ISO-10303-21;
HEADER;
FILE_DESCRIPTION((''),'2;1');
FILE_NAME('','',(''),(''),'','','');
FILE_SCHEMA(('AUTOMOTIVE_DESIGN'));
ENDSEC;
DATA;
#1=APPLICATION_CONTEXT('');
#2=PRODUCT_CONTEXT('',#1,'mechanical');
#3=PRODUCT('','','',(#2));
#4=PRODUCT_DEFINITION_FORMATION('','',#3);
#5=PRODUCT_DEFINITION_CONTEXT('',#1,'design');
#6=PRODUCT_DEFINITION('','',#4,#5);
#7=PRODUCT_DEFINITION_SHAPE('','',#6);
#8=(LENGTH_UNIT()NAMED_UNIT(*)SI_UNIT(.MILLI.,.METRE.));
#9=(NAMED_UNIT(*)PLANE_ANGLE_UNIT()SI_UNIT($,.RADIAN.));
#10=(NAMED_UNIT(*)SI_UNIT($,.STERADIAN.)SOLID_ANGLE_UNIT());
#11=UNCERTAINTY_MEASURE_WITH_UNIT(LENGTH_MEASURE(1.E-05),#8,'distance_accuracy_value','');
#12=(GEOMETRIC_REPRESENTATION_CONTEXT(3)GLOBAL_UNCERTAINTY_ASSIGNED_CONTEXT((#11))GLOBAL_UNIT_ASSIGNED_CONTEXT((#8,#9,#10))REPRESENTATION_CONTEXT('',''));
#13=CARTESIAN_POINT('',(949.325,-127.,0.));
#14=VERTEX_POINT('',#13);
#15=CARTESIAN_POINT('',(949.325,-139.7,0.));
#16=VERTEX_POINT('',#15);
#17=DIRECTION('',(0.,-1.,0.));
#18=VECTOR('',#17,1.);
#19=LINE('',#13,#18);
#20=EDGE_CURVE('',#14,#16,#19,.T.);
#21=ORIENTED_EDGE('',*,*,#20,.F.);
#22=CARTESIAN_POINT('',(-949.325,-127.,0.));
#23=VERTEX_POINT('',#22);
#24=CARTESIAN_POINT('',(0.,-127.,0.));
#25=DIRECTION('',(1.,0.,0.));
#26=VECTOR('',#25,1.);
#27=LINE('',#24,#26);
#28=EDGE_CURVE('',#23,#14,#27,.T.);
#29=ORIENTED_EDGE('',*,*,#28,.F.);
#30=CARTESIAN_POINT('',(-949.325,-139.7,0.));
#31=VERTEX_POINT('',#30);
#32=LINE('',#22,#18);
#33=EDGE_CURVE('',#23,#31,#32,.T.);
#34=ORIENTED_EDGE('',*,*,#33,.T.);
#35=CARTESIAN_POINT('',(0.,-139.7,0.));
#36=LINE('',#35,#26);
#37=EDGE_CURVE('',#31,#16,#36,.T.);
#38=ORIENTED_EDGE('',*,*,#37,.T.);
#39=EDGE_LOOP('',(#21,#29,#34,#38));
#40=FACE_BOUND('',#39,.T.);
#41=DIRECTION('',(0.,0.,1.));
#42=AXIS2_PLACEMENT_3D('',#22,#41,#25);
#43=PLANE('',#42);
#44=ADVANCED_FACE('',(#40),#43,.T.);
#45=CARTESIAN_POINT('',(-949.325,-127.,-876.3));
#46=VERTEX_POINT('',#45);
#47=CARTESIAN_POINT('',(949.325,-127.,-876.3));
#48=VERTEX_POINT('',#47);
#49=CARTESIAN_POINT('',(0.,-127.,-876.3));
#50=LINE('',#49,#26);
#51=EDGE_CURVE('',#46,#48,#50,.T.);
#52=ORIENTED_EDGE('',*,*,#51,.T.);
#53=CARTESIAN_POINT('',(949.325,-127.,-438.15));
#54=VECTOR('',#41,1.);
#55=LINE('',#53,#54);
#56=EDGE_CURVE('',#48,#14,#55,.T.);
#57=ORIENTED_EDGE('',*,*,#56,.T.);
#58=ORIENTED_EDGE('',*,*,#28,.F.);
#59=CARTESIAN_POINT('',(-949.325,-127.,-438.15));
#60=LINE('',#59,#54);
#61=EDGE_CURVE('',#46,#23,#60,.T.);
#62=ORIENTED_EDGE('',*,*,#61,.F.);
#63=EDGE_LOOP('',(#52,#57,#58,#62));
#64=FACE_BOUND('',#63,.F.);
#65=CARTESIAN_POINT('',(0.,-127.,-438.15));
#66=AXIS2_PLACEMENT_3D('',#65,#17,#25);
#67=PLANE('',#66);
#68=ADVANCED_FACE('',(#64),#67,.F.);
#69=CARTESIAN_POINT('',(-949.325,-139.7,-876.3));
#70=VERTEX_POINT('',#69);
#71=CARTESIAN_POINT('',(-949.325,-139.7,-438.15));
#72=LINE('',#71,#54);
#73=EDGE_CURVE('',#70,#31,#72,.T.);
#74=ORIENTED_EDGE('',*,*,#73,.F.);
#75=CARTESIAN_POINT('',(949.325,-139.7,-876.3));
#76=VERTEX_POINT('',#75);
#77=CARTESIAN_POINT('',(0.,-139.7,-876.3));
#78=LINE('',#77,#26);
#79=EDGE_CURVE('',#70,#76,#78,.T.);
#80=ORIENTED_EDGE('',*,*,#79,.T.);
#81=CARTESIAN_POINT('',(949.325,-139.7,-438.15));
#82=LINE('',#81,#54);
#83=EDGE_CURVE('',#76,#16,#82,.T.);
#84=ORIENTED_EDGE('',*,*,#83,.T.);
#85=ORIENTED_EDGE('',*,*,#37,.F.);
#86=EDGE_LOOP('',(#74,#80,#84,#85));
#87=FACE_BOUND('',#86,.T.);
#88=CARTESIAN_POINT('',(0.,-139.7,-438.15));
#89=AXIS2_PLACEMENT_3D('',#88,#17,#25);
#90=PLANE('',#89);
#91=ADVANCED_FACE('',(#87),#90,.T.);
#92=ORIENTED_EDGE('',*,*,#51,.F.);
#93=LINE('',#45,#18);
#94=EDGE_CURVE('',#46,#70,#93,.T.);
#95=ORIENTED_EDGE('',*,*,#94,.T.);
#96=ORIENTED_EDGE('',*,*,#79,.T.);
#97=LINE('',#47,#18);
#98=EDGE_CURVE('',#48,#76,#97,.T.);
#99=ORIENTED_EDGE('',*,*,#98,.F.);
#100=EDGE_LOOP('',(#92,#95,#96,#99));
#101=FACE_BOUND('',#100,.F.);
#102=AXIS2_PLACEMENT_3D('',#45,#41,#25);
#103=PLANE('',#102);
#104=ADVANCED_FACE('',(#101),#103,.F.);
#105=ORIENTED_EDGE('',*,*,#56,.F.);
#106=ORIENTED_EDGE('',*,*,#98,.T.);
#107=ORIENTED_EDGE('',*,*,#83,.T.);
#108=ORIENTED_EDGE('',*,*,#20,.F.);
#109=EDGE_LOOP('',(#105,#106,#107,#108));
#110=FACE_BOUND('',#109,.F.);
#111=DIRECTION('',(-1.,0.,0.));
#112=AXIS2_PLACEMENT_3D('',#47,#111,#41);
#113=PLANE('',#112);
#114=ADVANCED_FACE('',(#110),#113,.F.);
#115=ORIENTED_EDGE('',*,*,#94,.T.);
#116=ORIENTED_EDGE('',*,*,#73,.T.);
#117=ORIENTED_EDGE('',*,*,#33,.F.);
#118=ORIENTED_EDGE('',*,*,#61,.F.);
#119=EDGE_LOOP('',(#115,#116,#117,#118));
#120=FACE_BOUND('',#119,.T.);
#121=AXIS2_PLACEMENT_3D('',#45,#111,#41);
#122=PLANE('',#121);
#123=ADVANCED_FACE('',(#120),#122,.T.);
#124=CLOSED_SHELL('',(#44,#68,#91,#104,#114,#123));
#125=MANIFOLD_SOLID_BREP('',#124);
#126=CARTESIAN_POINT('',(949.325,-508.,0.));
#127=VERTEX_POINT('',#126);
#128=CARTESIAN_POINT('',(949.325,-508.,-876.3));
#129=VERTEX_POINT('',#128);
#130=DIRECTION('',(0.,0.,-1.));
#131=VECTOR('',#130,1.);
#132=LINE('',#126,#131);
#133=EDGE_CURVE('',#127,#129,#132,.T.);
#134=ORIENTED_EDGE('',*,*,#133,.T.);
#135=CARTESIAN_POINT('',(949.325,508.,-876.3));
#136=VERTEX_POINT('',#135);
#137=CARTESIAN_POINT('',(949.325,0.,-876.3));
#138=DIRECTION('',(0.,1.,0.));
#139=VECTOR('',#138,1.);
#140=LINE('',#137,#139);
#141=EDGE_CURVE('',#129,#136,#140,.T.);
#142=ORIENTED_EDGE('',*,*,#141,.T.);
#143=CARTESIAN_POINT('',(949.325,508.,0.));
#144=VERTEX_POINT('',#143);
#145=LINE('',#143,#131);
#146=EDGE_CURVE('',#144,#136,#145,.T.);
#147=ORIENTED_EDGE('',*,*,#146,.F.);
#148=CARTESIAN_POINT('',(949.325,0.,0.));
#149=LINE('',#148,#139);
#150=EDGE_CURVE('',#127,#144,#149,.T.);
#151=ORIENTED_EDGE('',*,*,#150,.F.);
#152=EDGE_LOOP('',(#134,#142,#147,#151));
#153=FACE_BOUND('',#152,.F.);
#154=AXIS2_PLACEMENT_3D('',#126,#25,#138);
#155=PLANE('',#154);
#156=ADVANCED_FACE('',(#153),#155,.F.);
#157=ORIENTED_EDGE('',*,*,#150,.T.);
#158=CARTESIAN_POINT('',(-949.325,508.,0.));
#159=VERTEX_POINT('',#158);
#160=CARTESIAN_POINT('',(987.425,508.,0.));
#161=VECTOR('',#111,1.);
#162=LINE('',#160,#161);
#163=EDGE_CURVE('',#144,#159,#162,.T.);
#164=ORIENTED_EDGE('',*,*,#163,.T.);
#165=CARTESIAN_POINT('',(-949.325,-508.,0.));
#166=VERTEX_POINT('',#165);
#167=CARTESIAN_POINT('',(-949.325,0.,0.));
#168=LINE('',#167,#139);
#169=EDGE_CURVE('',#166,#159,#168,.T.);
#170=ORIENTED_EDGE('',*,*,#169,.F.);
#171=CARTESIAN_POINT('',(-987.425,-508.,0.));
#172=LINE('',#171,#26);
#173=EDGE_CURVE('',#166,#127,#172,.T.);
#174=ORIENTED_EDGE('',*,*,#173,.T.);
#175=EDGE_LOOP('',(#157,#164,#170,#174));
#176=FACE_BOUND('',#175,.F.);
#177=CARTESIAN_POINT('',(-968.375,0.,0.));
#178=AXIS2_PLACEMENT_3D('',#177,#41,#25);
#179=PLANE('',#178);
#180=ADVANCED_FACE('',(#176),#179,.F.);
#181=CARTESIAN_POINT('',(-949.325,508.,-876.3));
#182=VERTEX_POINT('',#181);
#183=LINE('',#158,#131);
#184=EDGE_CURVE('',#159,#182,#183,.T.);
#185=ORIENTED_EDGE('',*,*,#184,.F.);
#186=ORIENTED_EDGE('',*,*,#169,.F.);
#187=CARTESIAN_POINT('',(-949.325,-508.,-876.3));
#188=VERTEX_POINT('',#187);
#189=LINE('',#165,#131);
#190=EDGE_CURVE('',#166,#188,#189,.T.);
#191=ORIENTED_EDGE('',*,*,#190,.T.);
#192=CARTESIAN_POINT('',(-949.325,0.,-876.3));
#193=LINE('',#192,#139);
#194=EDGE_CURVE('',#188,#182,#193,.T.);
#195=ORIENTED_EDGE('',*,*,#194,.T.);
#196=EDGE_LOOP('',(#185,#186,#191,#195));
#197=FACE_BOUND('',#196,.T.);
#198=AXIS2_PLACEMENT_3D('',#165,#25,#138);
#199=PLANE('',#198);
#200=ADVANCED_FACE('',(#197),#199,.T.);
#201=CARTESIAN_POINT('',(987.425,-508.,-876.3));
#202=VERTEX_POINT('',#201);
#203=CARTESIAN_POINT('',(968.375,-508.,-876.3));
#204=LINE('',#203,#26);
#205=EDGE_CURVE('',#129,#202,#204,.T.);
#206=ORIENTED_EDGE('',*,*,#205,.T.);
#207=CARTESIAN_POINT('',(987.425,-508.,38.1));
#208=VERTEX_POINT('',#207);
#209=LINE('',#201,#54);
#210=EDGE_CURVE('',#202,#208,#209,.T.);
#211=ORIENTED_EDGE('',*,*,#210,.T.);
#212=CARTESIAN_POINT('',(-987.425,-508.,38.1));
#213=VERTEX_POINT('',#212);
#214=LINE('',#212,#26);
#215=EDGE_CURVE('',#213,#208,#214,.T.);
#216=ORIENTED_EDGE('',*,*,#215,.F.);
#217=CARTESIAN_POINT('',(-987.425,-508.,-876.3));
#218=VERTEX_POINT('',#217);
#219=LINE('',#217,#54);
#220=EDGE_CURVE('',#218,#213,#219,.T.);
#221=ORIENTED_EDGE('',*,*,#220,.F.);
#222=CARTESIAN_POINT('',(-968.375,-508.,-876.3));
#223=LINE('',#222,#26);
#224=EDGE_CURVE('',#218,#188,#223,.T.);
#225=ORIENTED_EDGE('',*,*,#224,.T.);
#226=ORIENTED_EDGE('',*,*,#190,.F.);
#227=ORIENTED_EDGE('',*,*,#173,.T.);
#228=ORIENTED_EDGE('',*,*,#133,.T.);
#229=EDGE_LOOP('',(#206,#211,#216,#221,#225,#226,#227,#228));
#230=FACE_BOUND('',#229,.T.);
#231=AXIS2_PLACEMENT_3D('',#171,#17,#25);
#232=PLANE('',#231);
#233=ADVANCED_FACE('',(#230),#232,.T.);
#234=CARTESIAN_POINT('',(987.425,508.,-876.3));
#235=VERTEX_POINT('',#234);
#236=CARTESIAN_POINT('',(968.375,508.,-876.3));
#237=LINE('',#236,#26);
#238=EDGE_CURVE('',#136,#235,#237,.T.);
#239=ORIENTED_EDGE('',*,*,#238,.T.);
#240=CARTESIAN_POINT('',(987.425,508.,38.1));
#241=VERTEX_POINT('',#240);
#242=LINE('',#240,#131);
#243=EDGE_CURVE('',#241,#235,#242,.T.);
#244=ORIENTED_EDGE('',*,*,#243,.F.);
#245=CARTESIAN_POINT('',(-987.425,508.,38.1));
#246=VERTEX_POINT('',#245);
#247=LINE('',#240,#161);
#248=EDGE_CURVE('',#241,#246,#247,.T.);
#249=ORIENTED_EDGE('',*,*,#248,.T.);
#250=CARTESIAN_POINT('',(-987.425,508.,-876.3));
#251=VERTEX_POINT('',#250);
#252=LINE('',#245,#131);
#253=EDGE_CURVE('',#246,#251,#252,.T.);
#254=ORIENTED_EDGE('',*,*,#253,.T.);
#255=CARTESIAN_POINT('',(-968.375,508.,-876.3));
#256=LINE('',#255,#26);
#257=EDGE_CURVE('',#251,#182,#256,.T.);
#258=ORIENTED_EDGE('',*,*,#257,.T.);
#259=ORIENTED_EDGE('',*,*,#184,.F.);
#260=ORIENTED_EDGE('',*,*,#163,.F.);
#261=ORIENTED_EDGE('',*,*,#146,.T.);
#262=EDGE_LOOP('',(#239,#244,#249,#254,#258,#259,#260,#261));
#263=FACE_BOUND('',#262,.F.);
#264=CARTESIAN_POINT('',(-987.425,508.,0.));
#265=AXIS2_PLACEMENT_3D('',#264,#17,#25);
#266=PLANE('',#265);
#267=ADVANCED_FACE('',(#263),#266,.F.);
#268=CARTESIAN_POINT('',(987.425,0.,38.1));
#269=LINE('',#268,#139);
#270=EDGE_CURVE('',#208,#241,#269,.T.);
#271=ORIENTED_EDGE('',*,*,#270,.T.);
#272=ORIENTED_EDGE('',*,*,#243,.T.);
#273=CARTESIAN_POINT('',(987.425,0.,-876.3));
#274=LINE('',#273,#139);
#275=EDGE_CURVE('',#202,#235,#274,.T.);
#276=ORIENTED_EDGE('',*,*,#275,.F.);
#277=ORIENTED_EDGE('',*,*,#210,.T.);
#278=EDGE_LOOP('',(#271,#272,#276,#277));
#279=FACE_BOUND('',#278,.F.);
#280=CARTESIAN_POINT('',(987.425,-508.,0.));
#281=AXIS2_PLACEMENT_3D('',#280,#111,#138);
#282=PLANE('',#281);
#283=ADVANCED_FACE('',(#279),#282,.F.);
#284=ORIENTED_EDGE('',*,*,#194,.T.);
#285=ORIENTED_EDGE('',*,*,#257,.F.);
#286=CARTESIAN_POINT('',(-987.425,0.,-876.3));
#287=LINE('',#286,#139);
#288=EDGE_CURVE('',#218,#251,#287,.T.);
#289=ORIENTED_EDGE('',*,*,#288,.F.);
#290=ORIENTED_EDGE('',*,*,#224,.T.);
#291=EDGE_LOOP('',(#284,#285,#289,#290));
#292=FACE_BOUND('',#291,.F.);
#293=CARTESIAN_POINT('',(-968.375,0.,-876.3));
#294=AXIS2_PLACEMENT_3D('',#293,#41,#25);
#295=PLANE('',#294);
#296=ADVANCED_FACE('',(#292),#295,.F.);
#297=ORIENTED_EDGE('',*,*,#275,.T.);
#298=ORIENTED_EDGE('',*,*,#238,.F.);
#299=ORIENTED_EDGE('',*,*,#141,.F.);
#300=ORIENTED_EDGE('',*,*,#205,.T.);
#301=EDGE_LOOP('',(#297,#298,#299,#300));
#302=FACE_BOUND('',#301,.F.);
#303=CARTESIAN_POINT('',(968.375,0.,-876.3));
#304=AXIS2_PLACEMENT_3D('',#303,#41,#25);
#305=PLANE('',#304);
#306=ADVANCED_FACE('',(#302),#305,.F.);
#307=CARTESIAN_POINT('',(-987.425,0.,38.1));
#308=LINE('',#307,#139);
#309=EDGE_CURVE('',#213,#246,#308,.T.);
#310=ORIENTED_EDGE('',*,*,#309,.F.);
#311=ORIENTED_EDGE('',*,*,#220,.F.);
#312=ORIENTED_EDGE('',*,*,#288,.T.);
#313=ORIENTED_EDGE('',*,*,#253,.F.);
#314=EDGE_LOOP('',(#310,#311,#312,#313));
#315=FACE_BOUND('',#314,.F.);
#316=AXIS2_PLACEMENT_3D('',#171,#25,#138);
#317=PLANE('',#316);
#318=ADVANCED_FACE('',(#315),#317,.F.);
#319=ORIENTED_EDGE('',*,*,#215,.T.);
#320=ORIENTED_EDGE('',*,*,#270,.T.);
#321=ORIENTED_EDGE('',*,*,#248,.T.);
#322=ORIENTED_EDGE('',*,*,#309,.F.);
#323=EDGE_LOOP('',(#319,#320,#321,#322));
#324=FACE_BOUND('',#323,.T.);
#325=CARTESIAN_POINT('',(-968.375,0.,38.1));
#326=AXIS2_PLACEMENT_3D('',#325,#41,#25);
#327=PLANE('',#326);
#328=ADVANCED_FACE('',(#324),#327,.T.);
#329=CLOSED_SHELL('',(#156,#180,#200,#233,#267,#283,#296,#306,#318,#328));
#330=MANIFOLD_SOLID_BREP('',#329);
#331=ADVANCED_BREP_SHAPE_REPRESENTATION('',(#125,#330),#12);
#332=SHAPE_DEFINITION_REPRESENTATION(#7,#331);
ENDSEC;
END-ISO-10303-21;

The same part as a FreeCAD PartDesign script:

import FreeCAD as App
import Part
import Sketcher

V = App.Vector
Q = App.Units.Quantity

doc = App.newDocument("Part")
body = doc.addObject("PartDesign::Body", "Body")

sketch1 = body.newObject("Sketcher::SketchObject", "Sketch")
sketch1.AttachmentSupport = (doc.getObject("XY_Plane"), [""])
sketch1.MapMode = "FlatFace"
sketch1.addGeometry([
    Part.LineSegment(V(-987, 508, 0), V(-987, -508, 0)),
    Part.LineSegment(V(-987, -508, 0), V(987, -508, 0)),
    Part.LineSegment(V(987, -508, 0), V(987, 508, 0)),
    Part.LineSegment(V(987, 508, 0), V(-987, 508, 0)),
], False)
sketch1.addConstraint([
    Sketcher.Constraint("Coincident", 0, 2, 1, 1),
    Sketcher.Constraint("Coincident", 1, 2, 2, 1),
    Sketcher.Constraint("Coincident", 2, 2, 3, 1),
    Sketcher.Constraint("Coincident", 3, 2, 0, 1),
    Sketcher.Constraint("Vertical", 0),
    Sketcher.Constraint("Horizontal", 1),
    Sketcher.Constraint("Vertical", 2),
    Sketcher.Constraint("Horizontal", 3),
    Sketcher.Constraint("Symmetric", 0, 2, 2, 2, -1, 1),
    Sketcher.Constraint("DistanceY", 0, 2, 0, 1, Q("40 in")),
    Sketcher.Constraint("DistanceX", 1, 1, 1, 2, Q("77.75 in")),
])
pad1 = body.newObject("PartDesign::Pad", "Pad")
pad1.Profile = sketch1
pad1.Length = Q("1.5 in")

sketch2 = body.newObject("Sketcher::SketchObject", "Sketch001")
sketch2.AttachmentSupport = (doc.getObject("XY_Plane"), [""])
sketch2.MapMode = "FlatFace"
sketch2.addGeometry([
    Part.LineSegment(V(-987, 508, 0), V(-987, -508, 0)),
    Part.LineSegment(V(-987, -508, 0), V(-949, -508, 0)),
    Part.LineSegment(V(-949, -508, 0), V(-949, 508, 0)),
    Part.LineSegment(V(-949, 508, 0), V(-987, 508, 0)),
    Part.LineSegment(V(949, 508, 0), V(949, -508, 0)),
    Part.LineSegment(V(949, -508, 0), V(987, -508, 0)),
    Part.LineSegment(V(987, -508, 0), V(987, 508, 0)),
    Part.LineSegment(V(987, 508, 0), V(949, 508, 0)),
], False)
sketch2.addConstraint([
    Sketcher.Constraint("Coincident", 0, 2, 1, 1),
    Sketcher.Constraint("Coincident", 1, 2, 2, 1),
    Sketcher.Constraint("Coincident", 2, 2, 3, 1),
    Sketcher.Constraint("Coincident", 3, 2, 0, 1),
    Sketcher.Constraint("Coincident", 4, 2, 5, 1),
    Sketcher.Constraint("Coincident", 5, 2, 6, 1),
    Sketcher.Constraint("Coincident", 6, 2, 7, 1),
    Sketcher.Constraint("Coincident", 7, 2, 4, 1),
    Sketcher.Constraint("Vertical", 0),
    Sketcher.Constraint("Horizontal", 1),
    Sketcher.Constraint("Vertical", 2),
    Sketcher.Constraint("Horizontal", 3),
    Sketcher.Constraint("Vertical", 4),
    Sketcher.Constraint("Horizontal", 5),
    Sketcher.Constraint("Vertical", 6),
    Sketcher.Constraint("Horizontal", 7),
    Sketcher.Constraint("Symmetric", 2, 2, 4, 2, -1, 1),
    Sketcher.Constraint("Symmetric", 0, 2, 6, 2, -1, 1),
    Sketcher.Constraint("Horizontal", 1, 2, 4, 2),
    Sketcher.Constraint("DistanceY", 0, 2, 0, 1, Q("40 in")),
    Sketcher.Constraint("DistanceX", 1, 1, 1, 2, Q("1.5 in")),
    Sketcher.Constraint("DistanceX", 1, 2, 4, 2, Q("74.75 in")),
])
pad2 = body.newObject("PartDesign::Pad", "Pad001")
pad2.Profile = sketch2
pad2.Length = Q("34.5 in")
pad2.Reversed = True
body2 = doc.addObject("PartDesign::Body", "Body001")

sketch3 = body2.newObject("Sketcher::SketchObject", "Sketch002")
sketch3.AttachmentSupport = (doc.getObject("XZ_Plane001"), [""])
sketch3.MapMode = "FlatFace"
sketch3.AttachmentOffset = App.Placement(V(0, 0, 5 * 25.4), App.Rotation())
sketch3.addGeometry([
    Part.LineSegment(V(-949, 0, 0), V(-949, -876, 0)),
    Part.LineSegment(V(-949, -876, 0), V(949, -876, 0)),
    Part.LineSegment(V(949, -876, 0), V(949, 0, 0)),
    Part.LineSegment(V(949, 0, 0), V(-949, 0, 0)),
], False)
sketch3.addConstraint([
    Sketcher.Constraint("Coincident", 0, 2, 1, 1),
    Sketcher.Constraint("Coincident", 1, 2, 2, 1),
    Sketcher.Constraint("Coincident", 2, 2, 3, 1),
    Sketcher.Constraint("Coincident", 3, 2, 0, 1),
    Sketcher.Constraint("Vertical", 0),
    Sketcher.Constraint("Horizontal", 1),
    Sketcher.Constraint("Vertical", 2),
    Sketcher.Constraint("Horizontal", 3),
    Sketcher.Constraint("Symmetric", 2, 2, 3, 2, -1, 1),
    Sketcher.Constraint("DistanceY", 0, 2, 0, 1, Q("34.5 in")),
    Sketcher.Constraint("DistanceX", 1, 1, 1, 2, Q("74.75 in")),
])
pad3 = body2.newObject("PartDesign::Pad", "Pad002")
pad3.Profile = sketch3
pad3.Length = Q("0.5 in")

doc.recompute()
